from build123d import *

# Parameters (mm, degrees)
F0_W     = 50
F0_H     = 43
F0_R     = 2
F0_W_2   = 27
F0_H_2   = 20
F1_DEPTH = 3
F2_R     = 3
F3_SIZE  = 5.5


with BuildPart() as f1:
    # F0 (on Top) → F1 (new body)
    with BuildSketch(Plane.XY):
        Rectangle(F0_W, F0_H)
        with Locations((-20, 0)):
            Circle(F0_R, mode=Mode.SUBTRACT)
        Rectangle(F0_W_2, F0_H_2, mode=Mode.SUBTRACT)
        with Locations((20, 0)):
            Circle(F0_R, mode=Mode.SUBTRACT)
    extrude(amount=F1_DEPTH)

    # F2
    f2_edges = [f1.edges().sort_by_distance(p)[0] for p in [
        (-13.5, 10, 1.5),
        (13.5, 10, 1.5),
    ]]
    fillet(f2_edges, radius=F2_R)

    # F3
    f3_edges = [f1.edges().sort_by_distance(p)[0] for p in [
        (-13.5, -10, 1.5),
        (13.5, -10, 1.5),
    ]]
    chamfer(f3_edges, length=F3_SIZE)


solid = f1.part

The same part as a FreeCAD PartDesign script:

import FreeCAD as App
import Part
import Sketcher

V = App.Vector


def edges_at(feature, points):
    """Names of the edges that pass closest to the given points."""
    edges = feature.Shape.Edges
    near = lambda p: min(range(len(edges)), key=lambda i: edges[i].distToShape(Part.Vertex(*p))[0])
    return sorted({f"Edge{near(p) + 1}" for p in points})

doc = App.newDocument("Part")
body = doc.addObject("PartDesign::Body", "Body")

# Sketch on XY plane
sketch1 = body.newObject("Sketcher::SketchObject", "Sketch")
sketch1.AttachmentSupport = (doc.getObject("XY_Plane"), [""])
sketch1.MapMode = "FlatFace"
sketch1.addGeometry([
    Part.LineSegment(V(-25, 21.5, 0), V(-25, -21.5, 0)),  # 0
    Part.LineSegment(V(-25, -21.5, 0), V(25, -21.5, 0)),  # 1
    Part.LineSegment(V(25, -21.5, 0), V(25, 21.5, 0)),  # 2
    Part.LineSegment(V(25, 21.5, 0), V(-25, 21.5, 0)),  # 3
    Part.Circle(V(-20, 0, 0), V(0, 0, 1), 2),  # 4
    Part.LineSegment(V(13.5, -10, 0), V(-13.5, -10, 0)),  # 5
    Part.LineSegment(V(-13.5, -10, 0), V(-13.5, 10, 0)),  # 6
    Part.LineSegment(V(-13.5, 10, 0), V(13.5, 10, 0)),  # 7
    Part.LineSegment(V(13.5, 10, 0), V(13.5, -10, 0)),  # 8
    Part.Circle(V(20, 0, 0), V(0, 0, 1), 2),  # 9
], False)
sketch1.addConstraint([
    Sketcher.Constraint("Coincident", 0, 2, 1, 1),
    Sketcher.Constraint("Coincident", 1, 2, 2, 1),
    Sketcher.Constraint("Coincident", 2, 2, 3, 1),
    Sketcher.Constraint("Coincident", 3, 2, 0, 1),
    Sketcher.Constraint("Coincident", 5, 2, 6, 1),
    Sketcher.Constraint("Coincident", 6, 2, 7, 1),
    Sketcher.Constraint("Coincident", 7, 2, 8, 1),
    Sketcher.Constraint("Coincident", 8, 2, 5, 1),
    Sketcher.Constraint("Vertical", 0),
    Sketcher.Constraint("Horizontal", 1),
    Sketcher.Constraint("Vertical", 2),
    Sketcher.Constraint("Horizontal", 3),
    Sketcher.Constraint("Horizontal", 5),
    Sketcher.Constraint("Vertical", 6),
    Sketcher.Constraint("Horizontal", 7),
    Sketcher.Constraint("Vertical", 8),
    Sketcher.Constraint("Equal", 4, 9),
    Sketcher.Constraint("Symmetric", 4, 3, 9, 3, -1, 1),
    Sketcher.Constraint("Symmetric", 0, 2, 2, 2, -1, 1),
    Sketcher.Constraint("Symmetric", 5, 2, 7, 2, -1, 1),
    Sketcher.Constraint("PointOnObject", 4, 3, -1),
    Sketcher.Constraint("Diameter", 4, 4.0),
    Sketcher.Constraint("DistanceX", 1, 1, 1, 2, 50.0),
    Sketcher.Constraint("DistanceX", 5, 2, 5, 1, 27.0),
    Sketcher.Constraint("DistanceY", 0, 2, 0, 1, 43.0),
    Sketcher.Constraint("DistanceY", 6, 1, 6, 2, 20.0),
    Sketcher.Constraint("DistanceX", 4, 3, -1, 1, 20.0),
])
pad1 = body.newObject("PartDesign::Pad", "Pad")
pad1.Profile = sketch1
pad1.Length = 3
doc.recompute()

fillet = body.newObject("PartDesign::Fillet", "Fillet")
fillet.Base = (pad1, edges_at(pad1, [(-13.5, 10, 1.5), (13.5, 10, 1.5)]))
fillet.Radius = 3
doc.recompute()

chamfer = body.newObject("PartDesign::Chamfer", "Chamfer")
chamfer.Base = (fillet, edges_at(fillet, [(-13.5, -10, 1.5), (13.5, -10, 1.5)]))
chamfer.Size = 5.5

doc.recompute()
